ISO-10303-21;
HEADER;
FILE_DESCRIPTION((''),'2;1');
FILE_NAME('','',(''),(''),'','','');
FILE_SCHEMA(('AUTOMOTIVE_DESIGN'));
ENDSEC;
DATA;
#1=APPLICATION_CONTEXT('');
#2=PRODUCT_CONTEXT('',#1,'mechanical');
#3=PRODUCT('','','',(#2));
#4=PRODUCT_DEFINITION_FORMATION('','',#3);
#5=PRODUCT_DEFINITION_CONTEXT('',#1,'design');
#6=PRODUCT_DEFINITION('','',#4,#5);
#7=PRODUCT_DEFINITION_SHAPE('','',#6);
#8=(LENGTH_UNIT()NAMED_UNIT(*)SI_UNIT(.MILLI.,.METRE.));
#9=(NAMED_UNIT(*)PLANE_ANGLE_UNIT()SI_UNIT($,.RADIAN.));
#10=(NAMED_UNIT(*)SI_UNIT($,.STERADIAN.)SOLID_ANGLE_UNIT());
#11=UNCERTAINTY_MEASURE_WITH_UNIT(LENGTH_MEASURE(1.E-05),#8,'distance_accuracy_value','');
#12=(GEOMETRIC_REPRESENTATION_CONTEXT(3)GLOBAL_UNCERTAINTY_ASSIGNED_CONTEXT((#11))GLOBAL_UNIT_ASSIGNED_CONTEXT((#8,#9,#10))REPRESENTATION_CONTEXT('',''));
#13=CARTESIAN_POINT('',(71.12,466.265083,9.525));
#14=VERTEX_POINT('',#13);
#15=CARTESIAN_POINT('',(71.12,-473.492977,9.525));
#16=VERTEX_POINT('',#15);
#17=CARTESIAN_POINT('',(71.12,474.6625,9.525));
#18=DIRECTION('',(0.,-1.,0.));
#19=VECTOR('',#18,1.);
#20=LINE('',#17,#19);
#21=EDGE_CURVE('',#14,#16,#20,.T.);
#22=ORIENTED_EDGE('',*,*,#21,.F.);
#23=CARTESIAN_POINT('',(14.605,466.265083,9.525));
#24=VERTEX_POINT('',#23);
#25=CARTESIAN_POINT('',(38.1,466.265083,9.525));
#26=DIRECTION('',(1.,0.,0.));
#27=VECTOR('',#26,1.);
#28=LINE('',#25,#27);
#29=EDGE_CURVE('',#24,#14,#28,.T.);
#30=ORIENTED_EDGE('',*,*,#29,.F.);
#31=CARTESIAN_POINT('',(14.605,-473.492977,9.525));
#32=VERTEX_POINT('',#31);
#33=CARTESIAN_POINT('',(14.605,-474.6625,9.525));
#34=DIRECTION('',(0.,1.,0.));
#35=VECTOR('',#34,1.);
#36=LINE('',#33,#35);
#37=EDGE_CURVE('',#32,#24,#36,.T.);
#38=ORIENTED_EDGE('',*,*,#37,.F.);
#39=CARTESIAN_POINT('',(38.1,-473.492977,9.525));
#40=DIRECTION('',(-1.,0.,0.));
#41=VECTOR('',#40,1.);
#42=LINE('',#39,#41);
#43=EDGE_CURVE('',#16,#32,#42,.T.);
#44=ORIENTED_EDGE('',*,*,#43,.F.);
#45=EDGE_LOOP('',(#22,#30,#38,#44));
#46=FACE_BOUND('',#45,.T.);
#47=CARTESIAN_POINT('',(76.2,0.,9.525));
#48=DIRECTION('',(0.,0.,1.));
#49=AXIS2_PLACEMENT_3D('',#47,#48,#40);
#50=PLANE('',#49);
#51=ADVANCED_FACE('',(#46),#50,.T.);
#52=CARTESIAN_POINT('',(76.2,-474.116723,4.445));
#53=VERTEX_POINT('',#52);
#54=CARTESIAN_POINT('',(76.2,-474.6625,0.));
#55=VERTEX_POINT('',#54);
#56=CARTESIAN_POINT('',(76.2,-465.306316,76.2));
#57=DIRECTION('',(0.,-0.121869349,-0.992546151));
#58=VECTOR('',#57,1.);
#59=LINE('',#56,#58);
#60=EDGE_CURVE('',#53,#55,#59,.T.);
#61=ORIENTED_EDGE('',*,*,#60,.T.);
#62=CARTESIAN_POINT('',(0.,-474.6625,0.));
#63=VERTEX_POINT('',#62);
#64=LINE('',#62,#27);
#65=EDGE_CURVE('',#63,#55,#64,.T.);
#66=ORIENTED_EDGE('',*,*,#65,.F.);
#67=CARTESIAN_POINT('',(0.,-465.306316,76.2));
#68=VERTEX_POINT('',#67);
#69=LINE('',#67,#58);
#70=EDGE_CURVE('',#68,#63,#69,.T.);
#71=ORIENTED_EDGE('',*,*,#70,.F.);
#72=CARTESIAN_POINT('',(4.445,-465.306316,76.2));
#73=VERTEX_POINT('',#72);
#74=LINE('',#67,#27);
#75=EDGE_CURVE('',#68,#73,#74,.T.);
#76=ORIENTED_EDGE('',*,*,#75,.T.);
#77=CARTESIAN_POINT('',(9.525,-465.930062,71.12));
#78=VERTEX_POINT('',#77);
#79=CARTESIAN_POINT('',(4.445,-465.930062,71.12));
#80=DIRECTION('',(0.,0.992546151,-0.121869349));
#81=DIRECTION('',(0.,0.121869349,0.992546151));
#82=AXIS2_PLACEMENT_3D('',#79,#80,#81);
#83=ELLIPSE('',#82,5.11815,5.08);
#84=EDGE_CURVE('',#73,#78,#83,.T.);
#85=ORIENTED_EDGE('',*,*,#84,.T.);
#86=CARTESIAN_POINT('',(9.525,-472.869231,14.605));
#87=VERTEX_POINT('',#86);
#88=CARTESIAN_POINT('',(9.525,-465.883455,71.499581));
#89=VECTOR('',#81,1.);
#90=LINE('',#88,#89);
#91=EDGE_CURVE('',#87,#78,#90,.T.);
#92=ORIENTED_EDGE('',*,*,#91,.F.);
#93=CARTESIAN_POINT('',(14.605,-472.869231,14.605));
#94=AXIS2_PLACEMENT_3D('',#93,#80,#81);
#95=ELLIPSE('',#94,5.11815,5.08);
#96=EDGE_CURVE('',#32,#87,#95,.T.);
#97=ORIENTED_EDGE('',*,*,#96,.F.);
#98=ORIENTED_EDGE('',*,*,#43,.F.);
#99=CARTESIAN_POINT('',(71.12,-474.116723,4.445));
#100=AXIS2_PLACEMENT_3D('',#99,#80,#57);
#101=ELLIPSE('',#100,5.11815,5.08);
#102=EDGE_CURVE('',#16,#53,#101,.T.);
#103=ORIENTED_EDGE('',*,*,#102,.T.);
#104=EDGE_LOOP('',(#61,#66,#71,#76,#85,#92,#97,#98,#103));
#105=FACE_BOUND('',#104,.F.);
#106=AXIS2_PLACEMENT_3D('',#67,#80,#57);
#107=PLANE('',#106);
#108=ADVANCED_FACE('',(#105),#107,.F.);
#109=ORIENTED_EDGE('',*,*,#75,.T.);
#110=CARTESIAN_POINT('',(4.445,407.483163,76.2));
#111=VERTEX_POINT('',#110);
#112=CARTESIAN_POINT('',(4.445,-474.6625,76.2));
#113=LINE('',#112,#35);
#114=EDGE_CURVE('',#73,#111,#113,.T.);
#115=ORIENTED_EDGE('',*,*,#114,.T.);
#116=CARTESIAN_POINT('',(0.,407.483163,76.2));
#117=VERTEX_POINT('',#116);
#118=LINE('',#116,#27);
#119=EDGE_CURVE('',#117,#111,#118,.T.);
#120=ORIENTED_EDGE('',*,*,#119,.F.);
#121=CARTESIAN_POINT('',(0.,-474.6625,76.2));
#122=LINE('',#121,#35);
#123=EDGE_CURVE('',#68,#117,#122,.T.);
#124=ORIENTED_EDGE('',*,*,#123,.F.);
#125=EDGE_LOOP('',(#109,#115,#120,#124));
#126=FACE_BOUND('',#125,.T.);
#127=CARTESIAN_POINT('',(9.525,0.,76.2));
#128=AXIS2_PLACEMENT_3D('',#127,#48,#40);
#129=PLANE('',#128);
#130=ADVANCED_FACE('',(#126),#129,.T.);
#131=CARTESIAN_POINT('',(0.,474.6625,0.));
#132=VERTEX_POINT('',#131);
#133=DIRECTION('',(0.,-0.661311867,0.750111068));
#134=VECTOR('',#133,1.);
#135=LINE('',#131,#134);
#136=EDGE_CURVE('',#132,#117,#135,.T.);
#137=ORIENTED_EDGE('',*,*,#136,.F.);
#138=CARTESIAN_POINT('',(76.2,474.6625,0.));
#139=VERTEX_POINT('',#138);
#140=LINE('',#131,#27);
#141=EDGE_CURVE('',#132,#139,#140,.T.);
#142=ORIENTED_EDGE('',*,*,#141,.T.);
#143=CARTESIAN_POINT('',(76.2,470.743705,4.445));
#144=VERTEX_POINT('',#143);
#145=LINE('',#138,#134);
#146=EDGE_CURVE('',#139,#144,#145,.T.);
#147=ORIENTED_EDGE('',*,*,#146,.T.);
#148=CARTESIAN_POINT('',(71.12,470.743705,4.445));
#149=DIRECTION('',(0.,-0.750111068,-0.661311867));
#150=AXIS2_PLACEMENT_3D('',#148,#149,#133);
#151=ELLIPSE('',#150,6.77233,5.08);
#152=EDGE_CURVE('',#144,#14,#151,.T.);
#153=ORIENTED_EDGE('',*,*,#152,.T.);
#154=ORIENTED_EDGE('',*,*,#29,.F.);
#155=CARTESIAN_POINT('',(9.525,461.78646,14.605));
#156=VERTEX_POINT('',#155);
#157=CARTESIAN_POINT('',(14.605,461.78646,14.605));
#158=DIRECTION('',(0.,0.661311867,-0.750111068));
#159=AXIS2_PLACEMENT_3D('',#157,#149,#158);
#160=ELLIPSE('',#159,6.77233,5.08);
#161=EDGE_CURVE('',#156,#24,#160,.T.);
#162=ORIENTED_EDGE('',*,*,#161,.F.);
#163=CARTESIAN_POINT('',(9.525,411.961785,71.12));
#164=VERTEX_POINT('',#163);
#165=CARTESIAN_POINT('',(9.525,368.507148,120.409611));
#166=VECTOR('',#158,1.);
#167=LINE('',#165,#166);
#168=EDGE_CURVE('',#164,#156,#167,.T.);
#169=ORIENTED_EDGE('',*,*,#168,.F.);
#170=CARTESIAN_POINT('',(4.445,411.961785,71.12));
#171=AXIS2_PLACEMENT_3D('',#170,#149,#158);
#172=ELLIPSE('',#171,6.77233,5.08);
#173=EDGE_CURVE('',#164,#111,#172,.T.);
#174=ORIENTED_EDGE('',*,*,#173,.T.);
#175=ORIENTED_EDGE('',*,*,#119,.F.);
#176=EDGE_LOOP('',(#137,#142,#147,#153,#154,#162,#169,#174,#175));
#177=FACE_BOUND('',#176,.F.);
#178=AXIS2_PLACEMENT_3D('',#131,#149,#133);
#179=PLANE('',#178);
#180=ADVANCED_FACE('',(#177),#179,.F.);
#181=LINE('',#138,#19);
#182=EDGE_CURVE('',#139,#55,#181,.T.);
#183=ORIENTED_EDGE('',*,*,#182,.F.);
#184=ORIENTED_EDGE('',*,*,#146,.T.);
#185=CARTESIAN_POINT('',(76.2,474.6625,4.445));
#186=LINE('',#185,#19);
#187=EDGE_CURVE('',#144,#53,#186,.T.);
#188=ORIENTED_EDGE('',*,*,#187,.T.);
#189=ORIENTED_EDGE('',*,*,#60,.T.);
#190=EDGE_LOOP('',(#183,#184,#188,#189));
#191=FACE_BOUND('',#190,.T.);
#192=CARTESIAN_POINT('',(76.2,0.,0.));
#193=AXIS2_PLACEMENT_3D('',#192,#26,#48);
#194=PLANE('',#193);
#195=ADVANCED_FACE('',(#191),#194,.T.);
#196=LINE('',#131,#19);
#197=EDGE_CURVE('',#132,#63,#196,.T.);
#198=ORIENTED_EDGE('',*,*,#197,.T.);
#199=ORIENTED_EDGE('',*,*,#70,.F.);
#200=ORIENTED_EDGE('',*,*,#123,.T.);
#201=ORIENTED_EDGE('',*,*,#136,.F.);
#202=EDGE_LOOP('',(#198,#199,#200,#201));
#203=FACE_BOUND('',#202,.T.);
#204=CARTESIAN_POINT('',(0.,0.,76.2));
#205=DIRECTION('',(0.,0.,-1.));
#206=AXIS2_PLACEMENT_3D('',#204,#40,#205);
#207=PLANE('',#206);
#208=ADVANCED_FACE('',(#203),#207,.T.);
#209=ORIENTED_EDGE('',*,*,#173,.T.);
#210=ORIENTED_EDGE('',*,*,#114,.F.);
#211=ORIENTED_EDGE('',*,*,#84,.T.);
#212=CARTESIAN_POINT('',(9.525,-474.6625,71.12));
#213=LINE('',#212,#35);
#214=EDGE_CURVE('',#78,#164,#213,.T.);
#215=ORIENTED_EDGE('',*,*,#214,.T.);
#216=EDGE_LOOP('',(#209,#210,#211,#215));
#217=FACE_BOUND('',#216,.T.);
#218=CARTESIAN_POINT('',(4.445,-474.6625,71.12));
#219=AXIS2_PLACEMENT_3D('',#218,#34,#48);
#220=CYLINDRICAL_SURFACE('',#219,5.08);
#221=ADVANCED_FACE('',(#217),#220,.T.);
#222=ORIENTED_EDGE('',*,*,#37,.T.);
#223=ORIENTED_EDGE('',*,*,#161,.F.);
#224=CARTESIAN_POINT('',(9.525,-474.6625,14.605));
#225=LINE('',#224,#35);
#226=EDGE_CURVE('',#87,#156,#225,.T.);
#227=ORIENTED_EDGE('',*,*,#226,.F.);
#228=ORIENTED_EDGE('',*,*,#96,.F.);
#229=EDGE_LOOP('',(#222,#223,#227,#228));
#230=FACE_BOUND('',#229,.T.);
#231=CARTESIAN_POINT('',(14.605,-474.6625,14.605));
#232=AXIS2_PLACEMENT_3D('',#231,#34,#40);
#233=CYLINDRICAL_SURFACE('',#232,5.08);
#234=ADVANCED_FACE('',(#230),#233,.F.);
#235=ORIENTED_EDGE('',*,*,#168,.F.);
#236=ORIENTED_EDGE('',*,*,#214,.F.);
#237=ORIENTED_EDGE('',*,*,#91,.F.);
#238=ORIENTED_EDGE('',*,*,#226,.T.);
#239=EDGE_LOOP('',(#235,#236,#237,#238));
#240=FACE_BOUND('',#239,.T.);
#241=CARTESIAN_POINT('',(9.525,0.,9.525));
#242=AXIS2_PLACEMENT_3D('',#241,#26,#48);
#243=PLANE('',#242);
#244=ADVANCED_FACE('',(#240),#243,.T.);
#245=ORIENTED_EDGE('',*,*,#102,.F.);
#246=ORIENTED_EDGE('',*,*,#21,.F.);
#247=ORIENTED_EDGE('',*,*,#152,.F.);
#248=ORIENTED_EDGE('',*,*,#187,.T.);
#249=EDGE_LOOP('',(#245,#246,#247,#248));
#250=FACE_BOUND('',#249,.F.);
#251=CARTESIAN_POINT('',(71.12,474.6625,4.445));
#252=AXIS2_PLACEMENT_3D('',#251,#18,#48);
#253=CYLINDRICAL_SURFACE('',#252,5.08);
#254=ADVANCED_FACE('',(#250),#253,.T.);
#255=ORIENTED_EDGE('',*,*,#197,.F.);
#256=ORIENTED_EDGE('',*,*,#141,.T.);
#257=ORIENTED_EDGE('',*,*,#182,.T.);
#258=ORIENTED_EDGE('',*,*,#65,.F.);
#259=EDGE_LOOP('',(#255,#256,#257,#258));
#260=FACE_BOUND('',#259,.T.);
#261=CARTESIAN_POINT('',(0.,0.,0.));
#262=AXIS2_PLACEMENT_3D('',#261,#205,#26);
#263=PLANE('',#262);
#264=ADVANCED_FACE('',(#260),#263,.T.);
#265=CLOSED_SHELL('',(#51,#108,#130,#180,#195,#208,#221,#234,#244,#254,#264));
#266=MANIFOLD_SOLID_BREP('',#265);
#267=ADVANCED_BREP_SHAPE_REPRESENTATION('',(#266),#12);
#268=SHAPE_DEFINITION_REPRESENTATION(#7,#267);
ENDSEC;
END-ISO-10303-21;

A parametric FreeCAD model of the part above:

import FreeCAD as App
import Part
import Sketcher
Q = App.Units.Quantity


def edges_at(feature, points):
    """Names of the edges that pass closest to the given points."""
    edges = feature.Shape.Edges
    near = lambda p: min(range(len(edges)), key=lambda i: edges[i].distToShape(Part.Vertex(*p))[0])
    return sorted({f"Edge{near(p) + 1}" for p in points})


def add_polygon(sketch, points):
    """Adds a closed chain of lines whose ends are joined by coincident constraints."""
    first, n = sketch.GeometryCount, len(points)
    for a, b in zip(points, points[1:] + points[:1]):
        sketch.addGeometry(Part.LineSegment(App.Vector(*a, 0), App.Vector(*b, 0)), False)
    for i in range(n):
        sketch.addConstraint(Sketcher.Constraint("Coincident", first + i, 2, first + (i + 1) % n, 1))

doc = App.newDocument("Part")
body = doc.addObject("PartDesign::Body", "Body")

# Sketch on XZ plane
sketch1 = doc.addObject("Sketcher::SketchObject", "Sketch")
body.addObject(sketch1)
sketch1.AttachmentSupport = (doc.XZ_Plane, [""])
sketch1.MapMode = "FlatFace"
add_polygon(sketch1, [(0, 76), (0, 0), (76, 0), (76, 10), (10, 10), (10, 76)])  # lines 0-5
sketch1.addConstraint([
    Sketcher.Constraint("Vertical", 0),
    Sketcher.Constraint("Horizontal", 1),
    Sketcher.Constraint("Vertical", 2),
    Sketcher.Constraint("Horizontal", 3),
    Sketcher.Constraint("Vertical", 4),
    Sketcher.Constraint("Horizontal", 5),
    Sketcher.Constraint("Coincident", 0, 2, -1, 1),
    Sketcher.Constraint("Equal", 1, 0),
    Sketcher.Constraint("Equal", 5, 2),
    Sketcher.Constraint("DistanceX", 1, 1, 1, 2, Q("3 in")),
    Sketcher.Constraint("DistanceX", 3, 2, 3, 1, Q("2.625 in")),
])
pad1 = doc.addObject("PartDesign::Pad", "Pad")
body.addObject(pad1)
pad1.Profile = sketch1
pad1.Length = Q("37.375 in")
pad1.Midplane = True
doc.recompute()

fillet = doc.addObject("PartDesign::Fillet", "Fillet")
body.addObject(fillet)
fillet.Base = (pad1, edges_at(pad1, [(9.525, 0, 76.2), (9.525, 0, 9.525), (76.2, 0, 9.525)]))
fillet.Radius = Q("0.2 in")

# Sketch on YZ plane
sketch2 = doc.addObject("Sketcher::SketchObject", "Sketch001")
body.addObject(sketch2)
sketch2.AttachmentSupport = (doc.YZ_Plane, [""])
sketch2.MapMode = "FlatFace"
add_polygon(sketch2, [(475, 76), (475, 0), (407, 76)])  # lines 0-2
add_polygon(sketch2, [(-465, 76), (-475, 0), (-475, 76)])  # lines 3-5
sketch2.addConstraint([
    Sketcher.Constraint("Vertical", 0),
    Sketcher.Constraint("Horizontal", 2),
    Sketcher.Constraint("Vertical", 4),
    Sketcher.Constraint("Horizontal", 5),
    Sketcher.Constraint("Symmetric", 0, 2, 3, 2, -1, 1),
    Sketcher.Constraint("PointOnObject", 0, 2, -1),
    Sketcher.Constraint("Horizontal", 2, 2, 4, 2),
    Sketcher.Constraint("DistanceY", 0, 2, 0, 1, Q("3 in")),
    Sketcher.Constraint("Angle", 3, Q("-97 deg")),
    Sketcher.Constraint("Angle", 1, Q("131.4 deg")),
    Sketcher.Constraint("DistanceX", -1, 1, 0, 2, Q("18.6875 in")),
])
pocket1 = doc.addObject("PartDesign::Pocket", "Pocket")
body.addObject(pocket1)
pocket1.Profile = sketch2
pocket1.Length = Q("3 in")
pocket1.Reversed = True

# Sketch on YZ plane
sketch3 = doc.addObject("Sketcher::SketchObject", "Sketch002")
body.addObject(sketch3)
sketch3.AttachmentSupport = (doc.YZ_Plane, [""])
sketch3.MapMode = "FlatFace"
add_polygon(sketch3, [(475, 76), (475, 0), (407, 76)])  # lines 0-2
add_polygon(sketch3, [(-465, 76), (-475, 0), (-475, 76)])  # lines 3-5
sketch3.addConstraint([
    Sketcher.Constraint("Vertical", 0),
    Sketcher.Constraint("Horizontal", 2),
    Sketcher.Constraint("Vertical", 4),
    Sketcher.Constraint("Horizontal", 5),
    Sketcher.Constraint("Symmetric", 0, 2, 3, 2, -1, 1),
    Sketcher.Constraint("PointOnObject", 0, 2, -1),
    Sketcher.Constraint("Horizontal", 2, 2, 4, 2),
    Sketcher.Constraint("DistanceY", 0, 2, 0, 1, Q("3 in")),
    Sketcher.Constraint("Angle", 3, Q("-97 deg")),
    Sketcher.Constraint("Angle", 1, Q("131.4 deg")),
    Sketcher.Constraint("DistanceX", -1, 1, 0, 2, Q("18.6875 in")),
])
pocket2 = doc.addObject("PartDesign::Pocket", "Pocket001")
body.addObject(pocket2)
pocket2.Profile = sketch3
pocket2.Length = Q("3 in")
pocket2.Reversed = True

doc.recompute()
